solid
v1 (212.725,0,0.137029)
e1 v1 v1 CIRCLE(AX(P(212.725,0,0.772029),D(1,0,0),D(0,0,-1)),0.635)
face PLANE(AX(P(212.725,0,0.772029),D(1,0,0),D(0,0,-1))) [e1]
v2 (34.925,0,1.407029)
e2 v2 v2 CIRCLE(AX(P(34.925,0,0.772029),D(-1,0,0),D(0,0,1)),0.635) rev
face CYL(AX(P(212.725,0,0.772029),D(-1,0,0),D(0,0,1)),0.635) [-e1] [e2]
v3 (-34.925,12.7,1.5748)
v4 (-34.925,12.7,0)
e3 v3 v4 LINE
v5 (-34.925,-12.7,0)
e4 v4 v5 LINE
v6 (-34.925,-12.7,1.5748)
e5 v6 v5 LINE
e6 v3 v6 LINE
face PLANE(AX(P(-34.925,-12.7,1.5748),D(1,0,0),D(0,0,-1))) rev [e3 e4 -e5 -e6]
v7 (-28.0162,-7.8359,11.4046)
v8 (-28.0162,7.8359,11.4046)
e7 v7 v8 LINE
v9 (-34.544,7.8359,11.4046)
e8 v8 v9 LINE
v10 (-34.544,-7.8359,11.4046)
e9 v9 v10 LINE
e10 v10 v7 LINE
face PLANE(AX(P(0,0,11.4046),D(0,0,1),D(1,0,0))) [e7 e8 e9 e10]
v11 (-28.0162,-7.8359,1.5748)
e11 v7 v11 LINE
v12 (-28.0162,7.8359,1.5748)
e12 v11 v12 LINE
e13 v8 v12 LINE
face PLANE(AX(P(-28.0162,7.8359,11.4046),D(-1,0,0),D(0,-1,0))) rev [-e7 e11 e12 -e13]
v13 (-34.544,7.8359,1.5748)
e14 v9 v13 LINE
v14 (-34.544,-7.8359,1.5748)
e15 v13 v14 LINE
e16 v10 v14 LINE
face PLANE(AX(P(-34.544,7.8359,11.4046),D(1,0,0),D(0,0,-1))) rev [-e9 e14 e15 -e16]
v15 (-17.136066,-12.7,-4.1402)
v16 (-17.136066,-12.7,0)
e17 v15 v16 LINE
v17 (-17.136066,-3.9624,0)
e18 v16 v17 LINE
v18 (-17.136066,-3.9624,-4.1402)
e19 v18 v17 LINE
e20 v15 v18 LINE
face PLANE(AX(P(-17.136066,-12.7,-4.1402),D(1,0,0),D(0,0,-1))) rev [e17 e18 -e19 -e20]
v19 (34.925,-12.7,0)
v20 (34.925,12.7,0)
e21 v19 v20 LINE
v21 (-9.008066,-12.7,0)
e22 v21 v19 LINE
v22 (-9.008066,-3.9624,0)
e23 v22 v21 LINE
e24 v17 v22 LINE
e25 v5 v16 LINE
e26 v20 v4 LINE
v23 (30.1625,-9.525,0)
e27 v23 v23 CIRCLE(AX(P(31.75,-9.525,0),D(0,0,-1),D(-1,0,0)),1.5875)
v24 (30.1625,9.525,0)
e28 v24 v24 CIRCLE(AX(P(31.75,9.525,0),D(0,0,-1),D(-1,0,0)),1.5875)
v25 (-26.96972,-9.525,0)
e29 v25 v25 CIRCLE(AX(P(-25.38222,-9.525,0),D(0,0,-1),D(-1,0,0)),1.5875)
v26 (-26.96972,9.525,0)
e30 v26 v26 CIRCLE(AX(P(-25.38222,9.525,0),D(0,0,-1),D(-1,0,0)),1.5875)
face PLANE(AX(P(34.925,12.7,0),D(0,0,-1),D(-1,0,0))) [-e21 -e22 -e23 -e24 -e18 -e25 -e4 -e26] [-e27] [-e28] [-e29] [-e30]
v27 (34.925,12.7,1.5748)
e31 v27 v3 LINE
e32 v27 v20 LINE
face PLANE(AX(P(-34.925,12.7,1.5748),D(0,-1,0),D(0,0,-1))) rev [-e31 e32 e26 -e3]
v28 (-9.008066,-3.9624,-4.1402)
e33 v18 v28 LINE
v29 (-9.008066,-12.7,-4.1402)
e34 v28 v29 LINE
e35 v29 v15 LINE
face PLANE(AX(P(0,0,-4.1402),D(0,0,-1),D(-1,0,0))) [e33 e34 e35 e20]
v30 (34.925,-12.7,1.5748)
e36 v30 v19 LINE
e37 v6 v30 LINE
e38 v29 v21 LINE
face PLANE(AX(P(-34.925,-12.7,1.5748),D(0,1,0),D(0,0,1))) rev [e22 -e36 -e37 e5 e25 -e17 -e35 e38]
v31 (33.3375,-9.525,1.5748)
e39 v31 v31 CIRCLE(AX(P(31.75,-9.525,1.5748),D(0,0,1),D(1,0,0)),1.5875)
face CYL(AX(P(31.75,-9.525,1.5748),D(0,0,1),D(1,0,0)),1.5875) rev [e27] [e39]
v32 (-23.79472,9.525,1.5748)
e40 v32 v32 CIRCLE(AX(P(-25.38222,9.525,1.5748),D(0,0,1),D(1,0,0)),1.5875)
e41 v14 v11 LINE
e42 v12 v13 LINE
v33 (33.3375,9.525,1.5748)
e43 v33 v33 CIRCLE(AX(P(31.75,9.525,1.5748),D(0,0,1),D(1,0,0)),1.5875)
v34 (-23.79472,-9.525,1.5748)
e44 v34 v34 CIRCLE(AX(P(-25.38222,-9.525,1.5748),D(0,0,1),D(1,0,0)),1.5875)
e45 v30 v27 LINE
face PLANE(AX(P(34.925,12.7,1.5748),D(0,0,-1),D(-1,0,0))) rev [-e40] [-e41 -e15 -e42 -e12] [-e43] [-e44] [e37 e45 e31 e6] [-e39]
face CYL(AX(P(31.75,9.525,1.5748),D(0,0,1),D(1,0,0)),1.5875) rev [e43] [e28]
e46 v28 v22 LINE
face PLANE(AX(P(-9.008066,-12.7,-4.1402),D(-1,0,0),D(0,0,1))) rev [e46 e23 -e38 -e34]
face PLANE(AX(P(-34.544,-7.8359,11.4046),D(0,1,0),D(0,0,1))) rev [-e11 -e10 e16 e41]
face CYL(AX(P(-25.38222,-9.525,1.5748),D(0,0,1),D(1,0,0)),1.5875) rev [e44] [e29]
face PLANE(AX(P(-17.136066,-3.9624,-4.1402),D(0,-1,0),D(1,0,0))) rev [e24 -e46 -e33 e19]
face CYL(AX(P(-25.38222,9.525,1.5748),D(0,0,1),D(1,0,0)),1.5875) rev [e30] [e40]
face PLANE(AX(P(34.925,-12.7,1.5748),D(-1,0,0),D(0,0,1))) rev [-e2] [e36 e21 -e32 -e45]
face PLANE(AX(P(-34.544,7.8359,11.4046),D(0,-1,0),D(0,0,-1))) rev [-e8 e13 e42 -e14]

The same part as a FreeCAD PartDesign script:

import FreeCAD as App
import Part
import Sketcher
from FreeCAD import Vector
Q = App.Units.Quantity

doc = App.newDocument("Part")
params = doc.addObject("Spreadsheet::Sheet", "Params")
for row, (alias, value) in enumerate([
    ("sketch1_height", "1 in"),
    ("sketch1_width", "2.75 in"),
    ("pad1_length", "0.062 in"),
    ("sketch2_height", "0.63 in"),
    ("sketch2_width", "0.0625 in"),
    ("groove_angle", "360 deg"),
    ("linearpattern_pitch", "2.2493 in"),
    ("sketch3_height", "0.63 in"),
    ("sketch3_width", "0.0625 in"),
    ("groove2_angle", "360 deg"),
    ("sketch4_diameter", "0.05 in"),
    ("pad2_length", "7 in"),
    ("sketch5_width", "0.32 in"),
    ("sketch5_height", "0.344 in"),
    ("pad3_length", "0.163 in"),
    ("sketch6_width", "0.257 in"),
    ("sketch6_height", "0.617 in"),
    ("pad4_length", "0.387 in"),
], start=1):
    params.set(f"A{row}", alias)
    params.set(f"B{row}", "=" + value)
    params.setAlias(f"B{row}", alias)

body = doc.addObject("PartDesign::Body", "Body")

sketch1 = body.newObject("Sketcher::SketchObject", "Sketch")
sketch1.AttachmentSupport = (doc.getObject("XY_Plane"), [""])
sketch1.MapMode = "FlatFace"
sketch1.addGeometry(Part.LineSegment(Vector(-34.925, 12.7, 0), Vector(-34.925, -12.7, 0)), False)
sketch1.addGeometry(Part.LineSegment(Vector(-34.925, -12.7, 0), Vector(34.925, -12.7, 0)), False)
sketch1.addGeometry(Part.LineSegment(Vector(34.925, -12.7, 0), Vector(34.925, 12.7, 0)), False)
sketch1.addGeometry(Part.LineSegment(Vector(34.925, 12.7, 0), Vector(-34.925, 12.7, 0)), False)
sketch1.addConstraint(Sketcher.Constraint("Coincident", 0, 2, 1, 1))
sketch1.addConstraint(Sketcher.Constraint("Coincident", 1, 2, 2, 1))
sketch1.addConstraint(Sketcher.Constraint("Coincident", 2, 2, 3, 1))
sketch1.addConstraint(Sketcher.Constraint("Coincident", 3, 2, 0, 1))
sketch1.addConstraint(Sketcher.Constraint("Vertical", 0))
sketch1.addConstraint(Sketcher.Constraint("Horizontal", 1))
sketch1.addConstraint(Sketcher.Constraint("Vertical", 2))
sketch1.addConstraint(Sketcher.Constraint("Horizontal", 3))
sketch1.addConstraint(Sketcher.Constraint("Symmetric", 0, 2, 2, 2, -1, 1))
sketch1.addConstraint(Sketcher.Constraint("DistanceY", 0, 2, 0, 1, Q("1 in")))
sketch1.addConstraint(Sketcher.Constraint("DistanceX", 1, 1, 1, 2, Q("2.75 in")))
sketch1.setExpression("Constraints[9]", "Params.sketch1_height")
sketch1.setExpression("Constraints[10]", "Params.sketch1_width")
pad1 = body.newObject("PartDesign::Pad", "Pad")
pad1.Profile = sketch1
pad1.setExpression("Length", "Params.pad1_length")

sketch2 = body.newObject("Sketcher::SketchObject", "Sketch001")
sketch2.AttachmentSupport = (doc.getObject("YZ_Plane"), [""])
sketch2.MapMode = "FlatFace"
sketch2.AttachmentOffset = App.Placement(Vector(0, 0, -0.9993 * 25.4), App.Rotation())
sketch2.addGeometry(Part.LineSegment(Vector(9.525, -15.381066, 0), Vector(9.525, 1.5748, 0)), False)
sketch2.addGeometry(Part.LineSegment(Vector(9.525, 1.5748, 0), Vector(7.9375, 1.5748, 0)), False)
sketch2.addGeometry(Part.LineSegment(Vector(7.9375, 1.5748, 0), Vector(7.9375, -14.4272, 0)), False)
sketch2.addGeometry(Part.LineSegment(Vector(7.9375, -14.4272, 0), Vector(9.525, -15.381066, 0)), False)
sketch2.addGeometry(Part.LineSegment(Vector(9.525, 1.5748, 0), Vector(9.525, -15.381066, 0)), True)
sketch2.addConstraint(Sketcher.Constraint("Coincident", 0, 2, 1, 1))
sketch2.addConstraint(Sketcher.Constraint("Coincident", 1, 2, 2, 1))
sketch2.addConstraint(Sketcher.Constraint("Coincident", 2, 2, 3, 1))
sketch2.addConstraint(Sketcher.Constraint("Coincident", 3, 2, 0, 1))
sketch2.addConstraint(Sketcher.Constraint("Vertical", 0))
sketch2.addConstraint(Sketcher.Constraint("Horizontal", 1))
sketch2.addConstraint(Sketcher.Constraint("Vertical", 2))
sketch2.addConstraint(Sketcher.Constraint("Vertical", 4))
sketch2.addConstraint(Sketcher.Constraint("Coincident", 4, 1, 0, 2))
sketch2.addConstraint(Sketcher.Constraint("Equal", 0, 4))
sketch2.addConstraint(Sketcher.Constraint("Angle", 3, Q("-31 deg")))
sketch2.addConstraint(Sketcher.Constraint("DistanceY", 2, 2, 2, 1, Q("0.63 in")))
sketch2.addConstraint(Sketcher.Constraint("DistanceX", 1, 2, 1, 1, Q("0.0625 in")))
sketch2.addConstraint(Sketcher.Constraint("DistanceX", -1, 1, 0, 2, Q("0.375 in")))
sketch2.addConstraint(Sketcher.Constraint("DistanceY", -1, 1, 0, 2, Q("0.062 in")))
sketch2.setExpression("Constraints[11]", "Params.sketch2_height")
sketch2.setExpression("Constraints[12]", "Params.sketch2_width")
groove = body.newObject("PartDesign::Groove", "Groove")
groove.Profile = sketch2
groove.ReferenceAxis = (sketch2, ["Axis0"])
groove.setExpression("Angle", "Params.groove_angle")
doc.recompute()

linearpattern = body.newObject("PartDesign::LinearPattern", "LinearPattern")
linearpattern.Originals = [groove]
linearpattern.Direction = (doc.getObject("X_Axis"), [""])
linearpattern.Mode = "offset"
linearpattern.setExpression("Offset", "Params.linearpattern_pitch")
linearpattern.Occurrences = 2
body.Tip = linearpattern
doc.recompute()

mirrored = body.newObject("PartDesign::Mirrored", "Mirrored")
mirrored.Originals = [groove]
mirrored.MirrorPlane = (doc.getObject("XZ_Plane"), [""])
body.Tip = mirrored

sketch3 = body.newObject("Sketcher::SketchObject", "Sketch002")
sketch3.AttachmentSupport = (doc.getObject("YZ_Plane"), [""])
sketch3.MapMode = "FlatFace"
sketch3.AttachmentOffset = App.Placement(Vector(0, 0, 1.25 * 25.4), App.Rotation())
sketch3.addGeometry(Part.LineSegment(Vector(-9.525, 1.5748, 0), Vector(-9.525, -15.381066, 0)), False)
sketch3.addGeometry(Part.LineSegment(Vector(-9.525, -15.381066, 0), Vector(-7.9375, -14.4272, 0)), False)
sketch3.addGeometry(Part.LineSegment(Vector(-7.9375, -14.4272, 0), Vector(-7.9375, 1.5748, 0)), False)
sketch3.addGeometry(Part.LineSegment(Vector(-7.9375, 1.5748, 0), Vector(-9.525, 1.5748, 0)), False)
sketch3.addGeometry(Part.LineSegment(Vector(-9.525, -15.381066, 0), Vector(-9.525, 1.5748, 0)), True)
sketch3.addConstraint(Sketcher.Constraint("Coincident", 0, 2, 1, 1))
sketch3.addConstraint(Sketcher.Constraint("Coincident", 1, 2, 2, 1))
sketch3.addConstraint(Sketcher.Constraint("Coincident", 2, 2, 3, 1))
sketch3.addConstraint(Sketcher.Constraint("Coincident", 3, 2, 0, 1))
sketch3.addConstraint(Sketcher.Constraint("Vertical", 0))
sketch3.addConstraint(Sketcher.Constraint("Vertical", 2))
sketch3.addConstraint(Sketcher.Constraint("Horizontal", 3))
sketch3.addConstraint(Sketcher.Constraint("Vertical", 4))
sketch3.addConstraint(Sketcher.Constraint("Coincident", 4, 1, 0, 2))
sketch3.addConstraint(Sketcher.Constraint("Horizontal", 2, 2, 4, 2))
sketch3.addConstraint(Sketcher.Constraint("Angle", 1, Q("31 deg")))
sketch3.addConstraint(Sketcher.Constraint("DistanceY", 2, 1, 2, 2, Q("0.63 in")))
sketch3.addConstraint(Sketcher.Constraint("DistanceX", 3, 2, 3, 1, Q("0.0625 in")))
sketch3.addConstraint(Sketcher.Constraint("DistanceX", 0, 2, -1, 1, Q("0.375 in")))
sketch3.addConstraint(Sketcher.Constraint("DistanceY", 1, 2, -1, 1, Q("0.568 in")))
sketch3.setExpression("Constraints[11]", "Params.sketch3_height")
sketch3.setExpression("Constraints[12]", "Params.sketch3_width")
groove2 = body.newObject("PartDesign::Groove", "Groove001")
groove2.Profile = sketch3
groove2.ReferenceAxis = (sketch3, ["Axis0"])
groove2.setExpression("Angle", "Params.groove2_angle")

sketch4 = body.newObject("Sketcher::SketchObject", "Sketch003")
sketch4.AttachmentSupport = (doc.getObject("YZ_Plane"), [""])
sketch4.MapMode = "FlatFace"
sketch4.AttachmentOffset = App.Placement(Vector(0, 0, 1.375 * 25.4), App.Rotation())
sketch4.addGeometry(Part.Circle(Vector(0, 0.772029, 0), Vector(0, 0, 1), 0.635), False)
sketch4.addConstraint(Sketcher.Constraint("PointOnObject", 0, 3, -2))
sketch4.addConstraint(Sketcher.Constraint("Diameter", 0, Q("0.05 in")))
sketch4.addConstraint(Sketcher.Constraint("DistanceY", -1, 1, 0, 3, Q("0.772029 mm")))
sketch4.setExpression("Constraints[1]", "Params.sketch4_diameter")
pad2 = body.newObject("PartDesign::Pad", "Pad001")
pad2.Profile = sketch4
pad2.setExpression("Length", "Params.pad2_length")

sketch5 = body.newObject("Sketcher::SketchObject", "Sketch004")
sketch5.AttachmentSupport = (doc.getObject("XY_Plane"), [""])
sketch5.MapMode = "FlatFace"
sketch5.addGeometry(Part.LineSegment(Vector(-9.008066, -3.9624, 0), Vector(-9.008066, -12.7, 0)), False)
sketch5.addGeometry(Part.LineSegment(Vector(-9.008066, -12.7, 0), Vector(-17.136066, -12.7, 0)), False)
sketch5.addGeometry(Part.LineSegment(Vector(-17.136066, -12.7, 0), Vector(-17.136066, -3.9624, 0)), False)
sketch5.addGeometry(Part.LineSegment(Vector(-17.136066, -3.9624, 0), Vector(-9.008066, -3.9624, 0)), False)
sketch5.addConstraint(Sketcher.Constraint("Coincident", 0, 2, 1, 1))
sketch5.addConstraint(Sketcher.Constraint("Coincident", 1, 2, 2, 1))
sketch5.addConstraint(Sketcher.Constraint("Coincident", 2, 2, 3, 1))
sketch5.addConstraint(Sketcher.Constraint("Coincident", 3, 2, 0, 1))
sketch5.addConstraint(Sketcher.Constraint("Vertical", 0))
sketch5.addConstraint(Sketcher.Constraint("Horizontal", 1))
sketch5.addConstraint(Sketcher.Constraint("Vertical", 2))
sketch5.addConstraint(Sketcher.Constraint("Horizontal", 3))
sketch5.addConstraint(Sketcher.Constraint("DistanceX", 1, 2, 1, 1, Q("0.32 in")))
sketch5.addConstraint(Sketcher.Constraint("DistanceY", 0, 2, -1, 1, Q("0.5 in")))
sketch5.addConstraint(Sketcher.Constraint("DistanceY", 0, 2, 0, 1, Q("0.344 in")))
sketch5.addConstraint(Sketcher.Constraint("DistanceX", 0, 2, -1, 1, Q("9.008066 mm")))
sketch5.setExpression("Constraints[8]", "Params.sketch5_width")
sketch5.setExpression("Constraints[10]", "Params.sketch5_height")
pad3 = body.newObject("PartDesign::Pad", "Pad002")
pad3.Profile = sketch5
pad3.setExpression("Length", "Params.pad3_length")
pad3.Reversed = True

sketch6 = body.newObject("Sketcher::SketchObject", "Sketch005")
sketch6.AttachmentSupport = (doc.getObject("XY_Plane"), [""])
sketch6.MapMode = "FlatFace"
sketch6.AttachmentOffset = App.Placement(Vector(0, 0, 0.062 * 25.4), App.Rotation())
sketch6.addGeometry(Part.LineSegment(Vector(-34.544, 7.8359, 0), Vector(-34.544, -7.8359, 0)), False)
sketch6.addGeometry(Part.LineSegment(Vector(-34.544, -7.8359, 0), Vector(-28.0162, -7.8359, 0)), False)
sketch6.addGeometry(Part.LineSegment(Vector(-28.0162, -7.8359, 0), Vector(-28.0162, 7.8359, 0)), False)
sketch6.addGeometry(Part.LineSegment(Vector(-28.0162, 7.8359, 0), Vector(-34.544, 7.8359, 0)), False)
sketch6.addConstraint(Sketcher.Constraint("Coincident", 0, 2, 1, 1))
sketch6.addConstraint(Sketcher.Constraint("Coincident", 1, 2, 2, 1))
sketch6.addConstraint(Sketcher.Constraint("Coincident", 2, 2, 3, 1))
sketch6.addConstraint(Sketcher.Constraint("Coincident", 3, 2, 0, 1))
sketch6.addConstraint(Sketcher.Constraint("Vertical", 0))
sketch6.addConstraint(Sketcher.Constraint("Horizontal", 1))
sketch6.addConstraint(Sketcher.Constraint("Vertical", 2))
sketch6.addConstraint(Sketcher.Constraint("Horizontal", 3))
sketch6.addConstraint(Sketcher.Constraint("DistanceX", 1, 1, 1, 2, Q("0.257 in")))
sketch6.addConstraint(Sketcher.Constraint("DistanceY", 0, 2, 0, 1, Q("0.617 in")))
sketch6.addConstraint(Sketcher.Constraint("DistanceX", 0, 2, -1, 1, Q("1.36 in")))
sketch6.addConstraint(Sketcher.Constraint("DistanceY", 0, 2, -1, 1, Q("0.3085 in")))
sketch6.setExpression("Constraints[8]", "Params.sketch6_width")
sketch6.setExpression("Constraints[9]", "Params.sketch6_height")
pad4 = body.newObject("PartDesign::Pad", "Pad003")
pad4.Profile = sketch6
pad4.setExpression("Length", "Params.pad4_length")

doc.recompute()
